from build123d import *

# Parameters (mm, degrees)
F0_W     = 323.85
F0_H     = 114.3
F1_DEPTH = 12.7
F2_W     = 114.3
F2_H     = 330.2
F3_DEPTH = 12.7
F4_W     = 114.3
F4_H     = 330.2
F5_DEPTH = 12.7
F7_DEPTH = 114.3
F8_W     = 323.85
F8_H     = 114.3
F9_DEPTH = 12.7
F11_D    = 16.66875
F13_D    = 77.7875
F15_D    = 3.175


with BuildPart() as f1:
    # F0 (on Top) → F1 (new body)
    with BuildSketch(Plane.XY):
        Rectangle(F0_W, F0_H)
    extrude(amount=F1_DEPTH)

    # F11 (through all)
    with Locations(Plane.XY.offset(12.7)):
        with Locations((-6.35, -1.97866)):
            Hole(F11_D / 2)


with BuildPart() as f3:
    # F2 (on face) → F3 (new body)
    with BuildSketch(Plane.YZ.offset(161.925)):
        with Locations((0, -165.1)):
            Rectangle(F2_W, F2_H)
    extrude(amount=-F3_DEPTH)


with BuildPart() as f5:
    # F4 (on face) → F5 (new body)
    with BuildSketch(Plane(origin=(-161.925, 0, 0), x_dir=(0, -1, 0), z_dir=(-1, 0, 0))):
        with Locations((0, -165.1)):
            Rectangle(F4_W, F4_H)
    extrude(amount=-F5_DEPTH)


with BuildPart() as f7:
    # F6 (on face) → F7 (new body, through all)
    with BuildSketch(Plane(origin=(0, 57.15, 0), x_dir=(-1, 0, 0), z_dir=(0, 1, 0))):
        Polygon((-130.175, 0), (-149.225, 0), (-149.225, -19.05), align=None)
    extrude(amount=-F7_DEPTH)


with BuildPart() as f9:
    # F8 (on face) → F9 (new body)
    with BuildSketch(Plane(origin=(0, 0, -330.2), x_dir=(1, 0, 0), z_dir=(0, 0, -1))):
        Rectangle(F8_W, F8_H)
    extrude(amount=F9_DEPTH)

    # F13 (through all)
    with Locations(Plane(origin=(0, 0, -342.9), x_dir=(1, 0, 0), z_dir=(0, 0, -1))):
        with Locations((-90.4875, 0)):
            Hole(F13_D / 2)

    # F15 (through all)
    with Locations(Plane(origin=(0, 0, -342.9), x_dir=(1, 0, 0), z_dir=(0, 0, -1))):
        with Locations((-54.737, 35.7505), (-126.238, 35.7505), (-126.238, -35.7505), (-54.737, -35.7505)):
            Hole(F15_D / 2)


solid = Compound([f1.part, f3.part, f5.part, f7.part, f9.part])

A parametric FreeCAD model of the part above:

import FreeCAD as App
import Part
import Sketcher
Q = App.Units.Quantity


def add_polygon(sketch, points):
    """Adds a closed chain of lines whose ends are joined by coincident constraints."""
    first, n = sketch.GeometryCount, len(points)
    for a, b in zip(points, points[1:] + points[:1]):
        sketch.addGeometry(Part.LineSegment(App.Vector(*a, 0), App.Vector(*b, 0)), False)
    for i in range(n):
        sketch.addConstraint(Sketcher.Constraint("Coincident", first + i, 2, first + (i + 1) % n, 1))

doc = App.newDocument("Part")
body = doc.addObject("PartDesign::Body", "Body")

# Sketch on XY plane
sketch1 = body.newObject("Sketcher::SketchObject", "Sketch")
sketch1.AttachmentSupport = (doc.getObject("XY_Plane"), [""])
sketch1.MapMode = "FlatFace"
add_polygon(sketch1, [(-162, 57), (-162, -57), (162, -57), (162, 57)])  # lines 0-3
sketch1.addConstraint([
    Sketcher.Constraint("Vertical", 0),
    Sketcher.Constraint("Horizontal", 1),
    Sketcher.Constraint("Vertical", 2),
    Sketcher.Constraint("Horizontal", 3),
    Sketcher.Constraint("Symmetric", 0, 2, 2, 2, -1, 1),
    Sketcher.Constraint("DistanceY", 0, 2, 0, 1, Q("4.5 in")),
    Sketcher.Constraint("DistanceX", 1, 1, 1, 2, Q("12.75 in")),
])
pad1 = body.newObject("PartDesign::Pad", "Pad")
pad1.Profile = sketch1
pad1.Length = Q("0.5 in")

# Sketch on XY plane
sketch2 = body.newObject("Sketcher::SketchObject", "Sketch001")
sketch2.AttachmentSupport = (doc.getObject("XY_Plane"), [""])
sketch2.MapMode = "FlatFace"
sketch2.AttachmentOffset = App.Placement(App.Vector(0, 0, 0.5 * 25.4), App.Rotation())
sketch2.addGeometry(Part.Circle(App.Vector(-6, -2, 0), App.Vector(0, 0, 1), 8), False)
sketch2.addConstraint([
    Sketcher.Constraint("Diameter", 0, Q("0.65625 in")),
    Sketcher.Constraint("DistanceX", 0, 3, -1, 1, Q("0.25 in")),
    Sketcher.Constraint("DistanceY", 0, 3, -1, 1, Q("0.0779 in")),
])
doc.recompute()
hole = body.newObject("PartDesign::Hole", "Hole")
hole.Profile = sketch2
hole.ThreadType = "None"
hole.Diameter = Q("0.65625 in")
hole.DepthType = "ThroughAll"
body2 = doc.addObject("PartDesign::Body", "Body001")

# Sketch on YZ plane
sketch3 = body2.newObject("Sketcher::SketchObject", "Sketch002")
sketch3.AttachmentSupport = (doc.getObject("YZ_Plane001"), [""])
sketch3.MapMode = "FlatFace"
sketch3.AttachmentOffset = App.Placement(App.Vector(0, 0, 6.375 * 25.4), App.Rotation())
add_polygon(sketch3, [(-57, 0), (-57, -330), (57, -330), (57, 0)])  # lines 0-3
sketch3.addConstraint([
    Sketcher.Constraint("Vertical", 0),
    Sketcher.Constraint("Horizontal", 1),
    Sketcher.Constraint("Vertical", 2),
    Sketcher.Constraint("Horizontal", 3),
    Sketcher.Constraint("Symmetric", 2, 2, 3, 2, -1, 1),
    Sketcher.Constraint("DistanceY", 0, 2, 0, 1, Q("13 in")),
    Sketcher.Constraint("DistanceX", 1, 1, 1, 2, Q("4.5 in")),
])
pad2 = body2.newObject("PartDesign::Pad", "Pad001")
pad2.Profile = sketch3
pad2.Length = Q("0.5 in")
pad2.Reversed = True
body3 = doc.addObject("PartDesign::Body", "Body002")

# Sketch on YZ plane
sketch4 = body3.newObject("Sketcher::SketchObject", "Sketch003")
sketch4.AttachmentSupport = (doc.getObject("YZ_Plane002"), [""])
sketch4.MapMode = "FlatFace"
sketch4.AttachmentOffset = App.Placement(App.Vector(0, 0, -6.375 * 25.4), App.Rotation())
add_polygon(sketch4, [(57, 0), (57, -330), (-57, -330), (-57, 0)])  # lines 0-3
sketch4.addConstraint([
    Sketcher.Constraint("Vertical", 0),
    Sketcher.Constraint("Horizontal", 1),
    Sketcher.Constraint("Vertical", 2),
    Sketcher.Constraint("Horizontal", 3),
    Sketcher.Constraint("Symmetric", 2, 2, 3, 2, -1, 1),
    Sketcher.Constraint("DistanceY", 0, 2, 0, 1, Q("13 in")),
    Sketcher.Constraint("DistanceX", 1, 2, 1, 1, Q("4.5 in")),
])
pad3 = body3.newObject("PartDesign::Pad", "Pad002")
pad3.Profile = sketch4
pad3.Length = Q("0.5 in")
body4 = doc.addObject("PartDesign::Body", "Body003")

# Sketch on XZ plane
sketch5 = body4.newObject("Sketcher::SketchObject", "Sketch004")
sketch5.AttachmentSupport = (doc.getObject("XZ_Plane003"), [""])
sketch5.MapMode = "FlatFace"
sketch5.AttachmentOffset = App.Placement(App.Vector(0, 0, -2.25 * 25.4), App.Rotation())
add_polygon(sketch5, [(130, 0), (149, 0), (149, -19)])  # lines 0-2
sketch5.addConstraint([
    Sketcher.Constraint("Horizontal", 0),
    Sketcher.Constraint("Vertical", 1),
    Sketcher.Constraint("PointOnObject", 0, 2, -1),
    Sketcher.Constraint("Equal", 0, 1),
    Sketcher.Constraint("DistanceX", 0, 1, 0, 2, Q("0.75 in")),
    Sketcher.Constraint("DistanceX", -1, 1, 0, 2, Q("5.875 in")),
])
pad4 = body4.newObject("PartDesign::Pad", "Pad003")
pad4.Profile = sketch5
pad4.Length = Q("4.5 in")
body5 = doc.addObject("PartDesign::Body", "Body004")

# Sketch on XY plane
sketch6 = body5.newObject("Sketcher::SketchObject", "Sketch005")
sketch6.AttachmentSupport = (doc.getObject("XY_Plane004"), [""])
sketch6.MapMode = "FlatFace"
sketch6.AttachmentOffset = App.Placement(App.Vector(0, 0, -13 * 25.4), App.Rotation())
add_polygon(sketch6, [(-162, -57), (-162, 57), (162, 57), (162, -57)])  # lines 0-3
sketch6.addConstraint([
    Sketcher.Constraint("Vertical", 0),
    Sketcher.Constraint("Horizontal", 1),
    Sketcher.Constraint("Vertical", 2),
    Sketcher.Constraint("Horizontal", 3),
    Sketcher.Constraint("Symmetric", 0, 2, 2, 2, -1, 1),
    Sketcher.Constraint("DistanceY", 0, 1, 0, 2, Q("4.5 in")),
    Sketcher.Constraint("DistanceX", 1, 1, 1, 2, Q("12.75 in")),
])
pad5 = body5.newObject("PartDesign::Pad", "Pad004")
pad5.Profile = sketch6
pad5.Length = Q("0.5 in")
pad5.Reversed = True

# Sketch on XY plane
sketch7 = body5.newObject("Sketcher::SketchObject", "Sketch006")
sketch7.AttachmentSupport = (doc.getObject("XY_Plane004"), [""])
sketch7.MapMode = "FlatFace"
sketch7.AttachmentOffset = App.Placement(App.Vector(0, 0, -13.5 * 25.4), App.Rotation())
sketch7.addGeometry(Part.Circle(App.Vector(-90, 0, 0), App.Vector(0, 0, 1), 39), False)
sketch7.addConstraint([
    Sketcher.Constraint("PointOnObject", 0, 3, -1),
    Sketcher.Constraint("Diameter", 0, Q("3.0625 in")),
    Sketcher.Constraint("DistanceX", 0, 3, -1, 1, Q("3.5625 in")),
])
doc.recompute()
hole2 = body5.newObject("PartDesign::Hole", "Hole001")
hole2.Profile = sketch7
hole2.ThreadType = "None"
hole2.Diameter = Q("3.0625 in")
hole2.DepthType = "ThroughAll"
hole2.Reversed = True

# Sketch on XY plane
sketch8 = body5.newObject("Sketcher::SketchObject", "Sketch007")
sketch8.AttachmentSupport = (doc.getObject("XY_Plane004"), [""])
sketch8.MapMode = "FlatFace"
sketch8.AttachmentOffset = App.Placement(App.Vector(0, 0, -13.5 * 25.4), App.Rotation())
sketch8.addGeometry([
    Part.Circle(App.Vector(-54.7, -35.8, 0), App.Vector(0, 0, 1), 1.6),
    Part.Circle(App.Vector(-126.2, -35.8, 0), App.Vector(0, 0, 1), 1.6),
    Part.Circle(App.Vector(-126.2, 35.8, 0), App.Vector(0, 0, 1), 1.6),
    Part.Circle(App.Vector(-54.7, 35.8, 0), App.Vector(0, 0, 1), 1.6),
], False)
sketch8.addConstraint([
    Sketcher.Constraint("Equal", 0, 1),
    Sketcher.Constraint("Equal", 1, 2),
    Sketcher.Constraint("Equal", 2, 3),
    Sketcher.Constraint("Symmetric", 1, 3, 2, 3, -1),
    Sketcher.Constraint("Symmetric", 0, 3, 3, 3, -1),
    Sketcher.Constraint("Horizontal", 0, 3, 1, 3),
    Sketcher.Constraint("Diameter", 0, Q("0.125 in")),
    Sketcher.Constraint("DistanceX", 1, 3, -1, 1, Q("4.97 in")),
    Sketcher.Constraint("DistanceX", 0, 3, -1, 1, Q("2.155 in")),
    Sketcher.Constraint("DistanceY", 1, 3, 2, 3, Q("2.815 in")),
])
doc.recompute()
hole3 = body5.newObject("PartDesign::Hole", "Hole002")
hole3.Profile = sketch8
hole3.ThreadType = "None"
hole3.Diameter = Q("0.125 in")
hole3.DepthType = "ThroughAll"
hole3.Reversed = True

doc.recompute()
